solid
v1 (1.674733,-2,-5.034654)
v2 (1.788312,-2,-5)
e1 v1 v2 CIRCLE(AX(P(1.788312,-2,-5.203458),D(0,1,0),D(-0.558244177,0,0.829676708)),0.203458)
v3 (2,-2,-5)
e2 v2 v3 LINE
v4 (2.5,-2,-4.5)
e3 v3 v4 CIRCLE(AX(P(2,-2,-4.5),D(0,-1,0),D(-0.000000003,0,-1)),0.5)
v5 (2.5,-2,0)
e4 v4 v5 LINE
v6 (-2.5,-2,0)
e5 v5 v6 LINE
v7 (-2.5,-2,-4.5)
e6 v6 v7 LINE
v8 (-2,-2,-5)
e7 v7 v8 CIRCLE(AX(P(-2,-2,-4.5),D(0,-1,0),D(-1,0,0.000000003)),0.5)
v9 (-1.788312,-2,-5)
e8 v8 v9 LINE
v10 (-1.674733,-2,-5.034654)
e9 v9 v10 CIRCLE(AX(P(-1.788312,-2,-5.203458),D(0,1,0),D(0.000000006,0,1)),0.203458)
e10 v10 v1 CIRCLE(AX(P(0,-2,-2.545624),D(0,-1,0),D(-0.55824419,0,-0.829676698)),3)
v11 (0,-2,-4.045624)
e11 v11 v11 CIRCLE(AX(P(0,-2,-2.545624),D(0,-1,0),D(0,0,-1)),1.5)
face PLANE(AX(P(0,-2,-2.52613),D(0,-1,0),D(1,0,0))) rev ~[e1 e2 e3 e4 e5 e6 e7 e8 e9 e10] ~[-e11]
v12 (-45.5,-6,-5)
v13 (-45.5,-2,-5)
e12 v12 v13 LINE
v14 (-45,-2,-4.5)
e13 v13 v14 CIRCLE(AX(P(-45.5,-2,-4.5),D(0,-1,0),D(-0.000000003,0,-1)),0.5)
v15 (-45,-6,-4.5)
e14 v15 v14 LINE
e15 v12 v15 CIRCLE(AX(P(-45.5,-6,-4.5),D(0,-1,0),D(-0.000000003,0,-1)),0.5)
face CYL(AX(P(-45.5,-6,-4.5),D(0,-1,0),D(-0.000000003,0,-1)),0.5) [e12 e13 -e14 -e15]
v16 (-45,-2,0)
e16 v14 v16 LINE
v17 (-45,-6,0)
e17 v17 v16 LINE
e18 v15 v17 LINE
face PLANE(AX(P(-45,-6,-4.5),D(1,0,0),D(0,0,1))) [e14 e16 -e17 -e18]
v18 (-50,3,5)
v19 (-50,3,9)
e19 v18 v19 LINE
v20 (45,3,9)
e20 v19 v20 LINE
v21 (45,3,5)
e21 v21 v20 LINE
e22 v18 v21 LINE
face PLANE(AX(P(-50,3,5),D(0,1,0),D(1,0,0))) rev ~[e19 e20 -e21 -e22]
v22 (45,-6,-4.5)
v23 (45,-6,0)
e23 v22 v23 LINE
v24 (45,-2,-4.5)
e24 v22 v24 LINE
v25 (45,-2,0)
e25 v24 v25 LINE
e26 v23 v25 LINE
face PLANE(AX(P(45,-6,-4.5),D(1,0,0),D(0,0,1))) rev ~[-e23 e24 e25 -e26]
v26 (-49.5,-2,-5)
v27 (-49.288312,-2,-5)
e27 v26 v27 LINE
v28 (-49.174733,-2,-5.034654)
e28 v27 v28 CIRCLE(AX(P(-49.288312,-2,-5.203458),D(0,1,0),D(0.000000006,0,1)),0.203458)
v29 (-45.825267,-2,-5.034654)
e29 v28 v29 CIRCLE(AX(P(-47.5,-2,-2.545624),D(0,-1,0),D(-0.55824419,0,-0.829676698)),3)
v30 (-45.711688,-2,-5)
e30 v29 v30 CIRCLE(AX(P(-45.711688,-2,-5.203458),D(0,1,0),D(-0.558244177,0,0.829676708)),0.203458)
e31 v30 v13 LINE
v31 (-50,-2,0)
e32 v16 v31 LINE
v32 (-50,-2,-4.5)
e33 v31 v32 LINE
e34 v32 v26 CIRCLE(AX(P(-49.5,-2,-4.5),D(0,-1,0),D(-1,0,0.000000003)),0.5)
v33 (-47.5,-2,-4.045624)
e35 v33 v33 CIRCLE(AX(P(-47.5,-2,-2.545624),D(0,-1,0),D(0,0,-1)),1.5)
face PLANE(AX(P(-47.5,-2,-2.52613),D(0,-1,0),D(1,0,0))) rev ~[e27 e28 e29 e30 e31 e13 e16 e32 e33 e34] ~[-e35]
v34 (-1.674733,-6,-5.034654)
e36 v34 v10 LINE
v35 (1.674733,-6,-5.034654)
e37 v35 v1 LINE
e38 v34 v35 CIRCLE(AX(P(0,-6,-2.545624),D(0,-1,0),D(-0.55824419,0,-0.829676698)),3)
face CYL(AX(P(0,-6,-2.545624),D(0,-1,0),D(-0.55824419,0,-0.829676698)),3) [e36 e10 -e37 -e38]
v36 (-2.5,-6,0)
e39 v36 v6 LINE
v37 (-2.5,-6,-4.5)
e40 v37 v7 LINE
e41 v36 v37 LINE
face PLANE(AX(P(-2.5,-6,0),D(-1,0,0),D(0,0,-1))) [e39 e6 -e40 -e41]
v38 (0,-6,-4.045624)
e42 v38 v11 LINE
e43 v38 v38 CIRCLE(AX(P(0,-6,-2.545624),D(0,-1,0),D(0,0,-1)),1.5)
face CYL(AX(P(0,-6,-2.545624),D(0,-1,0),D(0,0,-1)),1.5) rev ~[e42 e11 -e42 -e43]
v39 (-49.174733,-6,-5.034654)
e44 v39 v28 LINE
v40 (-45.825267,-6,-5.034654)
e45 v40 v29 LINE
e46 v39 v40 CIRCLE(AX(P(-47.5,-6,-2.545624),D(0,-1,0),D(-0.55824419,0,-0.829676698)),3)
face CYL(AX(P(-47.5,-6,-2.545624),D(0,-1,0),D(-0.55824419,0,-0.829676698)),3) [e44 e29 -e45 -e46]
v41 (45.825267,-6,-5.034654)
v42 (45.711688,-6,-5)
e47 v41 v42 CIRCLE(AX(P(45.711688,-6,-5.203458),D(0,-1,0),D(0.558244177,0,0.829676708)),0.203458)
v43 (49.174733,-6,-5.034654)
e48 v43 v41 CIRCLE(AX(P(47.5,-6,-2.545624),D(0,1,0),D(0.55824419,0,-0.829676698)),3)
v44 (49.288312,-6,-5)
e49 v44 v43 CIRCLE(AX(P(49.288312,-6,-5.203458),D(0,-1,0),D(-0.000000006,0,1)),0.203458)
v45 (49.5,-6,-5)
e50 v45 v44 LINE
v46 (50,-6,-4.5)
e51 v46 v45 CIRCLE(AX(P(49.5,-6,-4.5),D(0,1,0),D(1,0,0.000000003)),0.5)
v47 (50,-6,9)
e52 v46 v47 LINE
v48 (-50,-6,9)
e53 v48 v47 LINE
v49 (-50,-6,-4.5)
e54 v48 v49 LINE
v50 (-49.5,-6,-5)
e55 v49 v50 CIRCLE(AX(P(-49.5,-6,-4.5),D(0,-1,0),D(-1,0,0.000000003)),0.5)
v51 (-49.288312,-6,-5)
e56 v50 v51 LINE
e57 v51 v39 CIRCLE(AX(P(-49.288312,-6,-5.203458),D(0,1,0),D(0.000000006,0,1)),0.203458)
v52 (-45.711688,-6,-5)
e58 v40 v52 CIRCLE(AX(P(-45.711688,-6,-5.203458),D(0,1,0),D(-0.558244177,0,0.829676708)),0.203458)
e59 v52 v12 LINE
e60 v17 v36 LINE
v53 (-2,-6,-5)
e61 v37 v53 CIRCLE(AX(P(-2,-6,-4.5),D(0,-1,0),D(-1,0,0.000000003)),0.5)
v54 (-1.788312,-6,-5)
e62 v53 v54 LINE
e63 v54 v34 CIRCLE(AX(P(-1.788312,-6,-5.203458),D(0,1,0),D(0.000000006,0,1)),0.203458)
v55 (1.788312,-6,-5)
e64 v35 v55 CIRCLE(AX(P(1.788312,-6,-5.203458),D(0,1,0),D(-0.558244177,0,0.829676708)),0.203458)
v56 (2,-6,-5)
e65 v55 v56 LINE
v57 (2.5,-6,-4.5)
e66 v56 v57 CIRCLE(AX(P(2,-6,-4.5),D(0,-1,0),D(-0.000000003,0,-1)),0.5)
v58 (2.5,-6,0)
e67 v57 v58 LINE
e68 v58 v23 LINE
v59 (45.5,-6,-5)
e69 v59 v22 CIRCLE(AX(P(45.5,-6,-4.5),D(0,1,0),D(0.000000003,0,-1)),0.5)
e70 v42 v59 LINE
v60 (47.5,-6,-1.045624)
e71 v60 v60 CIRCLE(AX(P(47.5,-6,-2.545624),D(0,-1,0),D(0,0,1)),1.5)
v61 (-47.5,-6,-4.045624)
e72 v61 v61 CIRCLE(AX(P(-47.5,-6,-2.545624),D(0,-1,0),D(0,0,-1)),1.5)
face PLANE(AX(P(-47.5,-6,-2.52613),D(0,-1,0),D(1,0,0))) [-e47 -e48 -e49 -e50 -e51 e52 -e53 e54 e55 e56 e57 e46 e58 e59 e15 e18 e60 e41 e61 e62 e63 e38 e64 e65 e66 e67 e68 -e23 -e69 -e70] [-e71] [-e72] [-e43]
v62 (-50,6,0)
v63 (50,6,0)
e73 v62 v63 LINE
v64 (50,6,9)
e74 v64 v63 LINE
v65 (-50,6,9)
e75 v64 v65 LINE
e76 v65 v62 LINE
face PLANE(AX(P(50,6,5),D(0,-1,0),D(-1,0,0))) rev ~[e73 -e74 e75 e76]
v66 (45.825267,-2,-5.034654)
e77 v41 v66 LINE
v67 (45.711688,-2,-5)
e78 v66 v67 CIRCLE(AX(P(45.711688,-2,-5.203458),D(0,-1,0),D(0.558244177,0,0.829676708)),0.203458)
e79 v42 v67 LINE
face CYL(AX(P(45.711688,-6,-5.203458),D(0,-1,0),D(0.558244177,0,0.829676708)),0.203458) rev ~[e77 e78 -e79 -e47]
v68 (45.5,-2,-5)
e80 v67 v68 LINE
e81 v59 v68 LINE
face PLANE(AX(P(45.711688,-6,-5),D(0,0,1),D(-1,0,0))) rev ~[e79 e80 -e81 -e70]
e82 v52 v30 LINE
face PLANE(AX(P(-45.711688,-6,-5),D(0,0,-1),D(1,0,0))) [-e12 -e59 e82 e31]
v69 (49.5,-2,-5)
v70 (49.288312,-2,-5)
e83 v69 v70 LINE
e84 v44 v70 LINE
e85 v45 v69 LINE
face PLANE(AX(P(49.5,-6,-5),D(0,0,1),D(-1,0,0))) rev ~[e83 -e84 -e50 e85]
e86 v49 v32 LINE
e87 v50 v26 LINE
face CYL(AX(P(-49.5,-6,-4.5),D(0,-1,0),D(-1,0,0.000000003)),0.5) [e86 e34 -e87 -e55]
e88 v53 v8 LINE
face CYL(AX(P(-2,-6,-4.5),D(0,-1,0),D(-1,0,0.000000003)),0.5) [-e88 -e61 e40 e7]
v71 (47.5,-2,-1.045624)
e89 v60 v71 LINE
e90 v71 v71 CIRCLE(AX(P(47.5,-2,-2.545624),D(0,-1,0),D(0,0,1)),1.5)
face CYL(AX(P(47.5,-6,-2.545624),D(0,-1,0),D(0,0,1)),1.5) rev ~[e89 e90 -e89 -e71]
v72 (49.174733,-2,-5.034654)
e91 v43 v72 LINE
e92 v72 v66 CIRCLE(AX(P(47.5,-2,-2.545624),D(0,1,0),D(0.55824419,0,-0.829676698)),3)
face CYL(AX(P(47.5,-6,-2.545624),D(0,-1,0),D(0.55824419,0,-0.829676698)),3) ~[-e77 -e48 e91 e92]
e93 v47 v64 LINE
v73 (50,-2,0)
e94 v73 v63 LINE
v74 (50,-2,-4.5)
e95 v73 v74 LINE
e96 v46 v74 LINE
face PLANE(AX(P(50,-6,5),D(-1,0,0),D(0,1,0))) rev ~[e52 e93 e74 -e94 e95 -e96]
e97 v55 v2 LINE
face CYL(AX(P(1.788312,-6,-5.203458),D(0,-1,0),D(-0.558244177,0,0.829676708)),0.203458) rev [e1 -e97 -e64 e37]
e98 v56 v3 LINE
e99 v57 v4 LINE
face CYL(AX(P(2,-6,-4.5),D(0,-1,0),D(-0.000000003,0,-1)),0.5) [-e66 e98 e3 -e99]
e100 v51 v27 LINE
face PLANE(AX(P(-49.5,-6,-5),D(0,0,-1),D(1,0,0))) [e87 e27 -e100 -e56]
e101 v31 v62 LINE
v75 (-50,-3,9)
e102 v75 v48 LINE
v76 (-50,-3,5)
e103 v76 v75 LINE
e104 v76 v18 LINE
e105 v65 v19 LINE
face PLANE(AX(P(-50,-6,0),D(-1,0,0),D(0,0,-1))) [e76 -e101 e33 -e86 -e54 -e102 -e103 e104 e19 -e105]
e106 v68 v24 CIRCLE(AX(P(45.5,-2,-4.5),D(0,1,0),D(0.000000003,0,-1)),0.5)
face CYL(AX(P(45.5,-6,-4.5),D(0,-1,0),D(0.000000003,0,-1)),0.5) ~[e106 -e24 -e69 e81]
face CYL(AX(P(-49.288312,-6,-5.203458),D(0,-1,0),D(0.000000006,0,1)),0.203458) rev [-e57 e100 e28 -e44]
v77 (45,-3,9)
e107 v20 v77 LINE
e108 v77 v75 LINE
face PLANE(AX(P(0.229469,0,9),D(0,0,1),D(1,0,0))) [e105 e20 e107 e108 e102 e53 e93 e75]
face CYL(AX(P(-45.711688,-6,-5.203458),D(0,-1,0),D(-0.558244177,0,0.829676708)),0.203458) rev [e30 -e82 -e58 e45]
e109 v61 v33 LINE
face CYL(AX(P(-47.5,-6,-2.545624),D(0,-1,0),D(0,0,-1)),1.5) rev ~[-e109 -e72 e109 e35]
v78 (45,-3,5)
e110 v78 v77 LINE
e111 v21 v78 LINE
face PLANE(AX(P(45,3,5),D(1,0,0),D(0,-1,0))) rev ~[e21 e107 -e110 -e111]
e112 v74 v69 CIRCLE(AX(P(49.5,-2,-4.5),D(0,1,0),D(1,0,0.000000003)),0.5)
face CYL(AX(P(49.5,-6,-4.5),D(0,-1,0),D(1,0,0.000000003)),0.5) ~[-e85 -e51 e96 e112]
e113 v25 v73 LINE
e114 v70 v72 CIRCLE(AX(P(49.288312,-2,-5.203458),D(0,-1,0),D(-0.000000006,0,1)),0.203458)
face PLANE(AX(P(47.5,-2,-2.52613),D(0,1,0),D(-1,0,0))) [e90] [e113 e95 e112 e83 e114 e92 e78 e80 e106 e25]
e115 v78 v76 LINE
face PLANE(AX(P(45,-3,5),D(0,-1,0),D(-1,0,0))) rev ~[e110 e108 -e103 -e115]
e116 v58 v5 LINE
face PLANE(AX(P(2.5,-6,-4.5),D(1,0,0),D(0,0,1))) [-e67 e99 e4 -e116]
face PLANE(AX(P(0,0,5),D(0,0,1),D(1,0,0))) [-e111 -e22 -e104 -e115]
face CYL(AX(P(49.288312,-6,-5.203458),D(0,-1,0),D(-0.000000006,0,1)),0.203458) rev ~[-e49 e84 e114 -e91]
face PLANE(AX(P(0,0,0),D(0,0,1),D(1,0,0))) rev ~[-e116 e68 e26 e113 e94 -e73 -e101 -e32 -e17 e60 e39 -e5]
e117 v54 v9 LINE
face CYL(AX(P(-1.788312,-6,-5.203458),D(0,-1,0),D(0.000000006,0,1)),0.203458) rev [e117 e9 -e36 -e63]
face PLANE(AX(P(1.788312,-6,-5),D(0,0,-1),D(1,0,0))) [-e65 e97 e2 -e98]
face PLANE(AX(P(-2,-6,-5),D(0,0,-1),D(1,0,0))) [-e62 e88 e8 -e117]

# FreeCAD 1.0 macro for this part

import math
import FreeCAD as App
import Part
import Sketcher

V = App.Vector


def add_polygon(sketch, points):
    """Adds a closed chain of lines whose ends are joined by coincident constraints."""
    first, n = sketch.GeometryCount, len(points)
    for a, b in zip(points, points[1:] + points[:1]):
        sketch.addGeometry(Part.LineSegment(App.Vector(*a, 0), App.Vector(*b, 0)), False)
    for i in range(n):
        sketch.addConstraint(Sketcher.Constraint("Coincident", first + i, 2, first + (i + 1) % n, 1))

doc = App.newDocument("Part")
body = doc.addObject("PartDesign::Body", "Body")

# Sketch on XY plane
sketch1 = doc.addObject("Sketcher::SketchObject", "Sketch")
body.addObject(sketch1)
sketch1.AttachmentSupport = (doc.XY_Plane, [""])
sketch1.MapMode = "FlatFace"
add_polygon(sketch1, [(-50, 6), (-50, -6), (50, -6), (50, 6)])  # lines 0-3
sketch1.addConstraint(Sketcher.Constraint("Vertical", 0))
sketch1.addConstraint(Sketcher.Constraint("Horizontal", 1))
sketch1.addConstraint(Sketcher.Constraint("Vertical", 2))
sketch1.addConstraint(Sketcher.Constraint("Horizontal", 3))
sketch1.addConstraint(Sketcher.Constraint("Symmetric", 0, 2, 2, 2, -1, 1))
sketch1.addConstraint(Sketcher.Constraint("DistanceX", 1, 1, 1, 2, 100.0))
sketch1.addConstraint(Sketcher.Constraint("DistanceY", 0, 2, 0, 1, 12.0))
pad1 = doc.addObject("PartDesign::Pad", "Pad")
body.addObject(pad1)
pad1.Profile = sketch1
pad1.Length = 5

# Sketch on XY plane
sketch2 = doc.addObject("Sketcher::SketchObject", "Sketch001")
body.addObject(sketch2)
sketch2.AttachmentSupport = (doc.XY_Plane, [""])
sketch2.MapMode = "FlatFace"
sketch2.AttachmentOffset = App.Placement(V(0, 0, 5), App.Rotation())
add_polygon(sketch2, [(-50, 3), (45, 3), (45, -3), (-50, -3), (-50, -6), (50, -6), (50, 6), (-50, 6)])  # lines 0-7
sketch2.addConstraint(Sketcher.Constraint("Horizontal", 0))
sketch2.addConstraint(Sketcher.Constraint("Vertical", 1))
sketch2.addConstraint(Sketcher.Constraint("Horizontal", 2))
sketch2.addConstraint(Sketcher.Constraint("Vertical", 3))
sketch2.addConstraint(Sketcher.Constraint("Horizontal", 4))
sketch2.addConstraint(Sketcher.Constraint("Vertical", 5))
sketch2.addConstraint(Sketcher.Constraint("Horizontal", 6))
sketch2.addConstraint(Sketcher.Constraint("Vertical", 7))
sketch2.addConstraint(Sketcher.Constraint("Symmetric", 3, 2, 5, 2, -1, 1))
sketch2.addConstraint(Sketcher.Constraint("Symmetric", 2, 2, 7, 2, -1))
sketch2.addConstraint(Sketcher.Constraint("DistanceX", 0, 1, 0, 2, 95.0))
sketch2.addConstraint(Sketcher.Constraint("DistanceX", 4, 1, 4, 2, 100.0))
sketch2.addConstraint(Sketcher.Constraint("DistanceY", 1, 2, 1, 1, 6.0))
sketch2.addConstraint(Sketcher.Constraint("DistanceY", 3, 2, 3, 1, 3.0))
pad2 = doc.addObject("PartDesign::Pad", "Pad001")
body.addObject(pad2)
pad2.Profile = sketch2
pad2.Length = 4

# Sketch on XZ plane
sketch3 = doc.addObject("Sketcher::SketchObject", "Sketch002")
body.addObject(sketch3)
sketch3.AttachmentSupport = (doc.XZ_Plane, [""])
sketch3.MapMode = "FlatFace"
sketch3.AttachmentOffset = App.Placement(V(0, 0, 6), App.Rotation())
sketch3.addGeometry(Part.LineSegment(V(-45.71, -5, 0), V(-45.5, -5, 0)), False)
sketch3.addGeometry(Part.ArcOfCircle(Part.Circle(V(-45.5, -4.5, 0), V(0, 0, 1), 0.5), math.radians(-90), math.radians(0)), False)
sketch3.addGeometry(Part.LineSegment(V(-45, -4.5, 0), V(-45, 0, 0)), False)
sketch3.addGeometry(Part.LineSegment(V(-45, 0, 0), V(-50, 0, 0)), False)
sketch3.addGeometry(Part.LineSegment(V(-50, 0, 0), V(-50, -4.5, 0)), False)
sketch3.addGeometry(Part.ArcOfCircle(Part.Circle(V(-49.5, -4.5, 0), V(0, 0, 1), 0.5), math.radians(180), math.radians(270)), False)
sketch3.addGeometry(Part.LineSegment(V(-49.5, -5, 0), V(-49.29, -5, 0)), False)
sketch3.addGeometry(Part.ArcOfCircle(Part.Circle(V(-49.29, -5.2, 0), V(0, 0, 1), 0.2), math.radians(56), math.radians(90)), False)
sketch3.addGeometry(Part.ArcOfCircle(Part.Circle(V(-47.5, -2.55, 0), V(0, 0, 1), 3), math.radians(-124), math.radians(-56)), False)
sketch3.addGeometry(Part.ArcOfCircle(Part.Circle(V(-45.71, -5.2, 0), V(0, 0, 1), 0.2), math.radians(90), math.radians(124)), False)
sketch3.addGeometry(Part.Circle(V(-47.5, -2.55, 0), V(0, 0, 1), 1.5), False)
sketch3.addGeometry(Part.LineSegment(V(49.29, -5, 0), V(49.5, -5, 0)), False)
sketch3.addGeometry(Part.ArcOfCircle(Part.Circle(V(49.5, -4.5, 0), V(0, 0, 1), 0.5), math.radians(-90), math.radians(0)), False)
sketch3.addGeometry(Part.LineSegment(V(50, -4.5, 0), V(50, 0, 0)), False)
sketch3.addGeometry(Part.LineSegment(V(50, 0, 0), V(45, 0, 0)), False)
sketch3.addGeometry(Part.LineSegment(V(45, 0, 0), V(45, -4.5, 0)), False)
sketch3.addGeometry(Part.ArcOfCircle(Part.Circle(V(45.5, -4.5, 0), V(0, 0, 1), 0.5), math.radians(180), math.radians(270)), False)
sketch3.addGeometry(Part.LineSegment(V(45.5, -5, 0), V(45.71, -5, 0)), False)
sketch3.addGeometry(Part.ArcOfCircle(Part.Circle(V(45.71, -5.2, 0), V(0, 0, 1), 0.2), math.radians(56), math.radians(90)), False)
sketch3.addGeometry(Part.ArcOfCircle(Part.Circle(V(47.5, -2.55, 0), V(0, 0, 1), 3), math.radians(-124), math.radians(-56)), False)
sketch3.addGeometry(Part.ArcOfCircle(Part.Circle(V(49.29, -5.2, 0), V(0, 0, 1), 0.2), math.radians(90), math.radians(124)), False)
sketch3.addGeometry(Part.Circle(V(47.5, -2.55, 0), V(0, 0, 1), 1.5), False)
sketch3.addGeometry(Part.LineSegment(V(-2.5, 0, 0), V(-2.5, -4.5, 0)), False)
sketch3.addGeometry(Part.ArcOfCircle(Part.Circle(V(-2, -4.5, 0), V(0, 0, 1), 0.5), math.radians(180), math.radians(270)), False)
sketch3.addGeometry(Part.LineSegment(V(-2, -5, 0), V(-1.79, -5, 0)), False)
sketch3.addGeometry(Part.ArcOfCircle(Part.Circle(V(-1.79, -5.2, 0), V(0, 0, 1), 0.2), math.radians(56), math.radians(90)), False)
sketch3.addGeometry(Part.ArcOfCircle(Part.Circle(V(0, -2.55, 0), V(0, 0, 1), 3), math.radians(-124), math.radians(-56)), False)
sketch3.addGeometry(Part.ArcOfCircle(Part.Circle(V(1.79, -5.2, 0), V(0, 0, 1), 0.2), math.radians(90), math.radians(124)), False)
sketch3.addGeometry(Part.LineSegment(V(1.79, -5, 0), V(2, -5, 0)), False)
sketch3.addGeometry(Part.ArcOfCircle(Part.Circle(V(2, -4.5, 0), V(0, 0, 1), 0.5), math.radians(-90), math.radians(0)), False)
sketch3.addGeometry(Part.LineSegment(V(2.5, -4.5, 0), V(2.5, 0, 0)), False)
sketch3.addGeometry(Part.LineSegment(V(2.5, 0, 0), V(-2.5, 0, 0)), False)
sketch3.addGeometry(Part.Circle(V(0, -2.55, 0), V(0, 0, 1), 1.5), False)
sketch3.addConstraint(Sketcher.Constraint("Tangent", 0, 2, 1, 1))
sketch3.addConstraint(Sketcher.Constraint("Tangent", 1, 2, 2, 1))
sketch3.addConstraint(Sketcher.Constraint("Coincident", 2, 2, 3, 1))
sketch3.addConstraint(Sketcher.Constraint("Coincident", 3, 2, 4, 1))
sketch3.addConstraint(Sketcher.Constraint("Tangent", 4, 2, 5, 1))
sketch3.addConstraint(Sketcher.Constraint("Tangent", 5, 2, 6, 1))
sketch3.addConstraint(Sketcher.Constraint("Tangent", 6, 2, 7, 2))
sketch3.addConstraint(Sketcher.Constraint("Tangent", 7, 1, 8, 1))
sketch3.addConstraint(Sketcher.Constraint("Tangent", 8, 2, 9, 2))
sketch3.addConstraint(Sketcher.Constraint("Tangent", 9, 1, 0, 1))
sketch3.addConstraint(Sketcher.Constraint("Tangent", 11, 2, 12, 1))
sketch3.addConstraint(Sketcher.Constraint("Tangent", 12, 2, 13, 1))
sketch3.addConstraint(Sketcher.Constraint("Coincident", 13, 2, 14, 1))
sketch3.addConstraint(Sketcher.Constraint("Coincident", 14, 2, 15, 1))
sketch3.addConstraint(Sketcher.Constraint("Tangent", 15, 2, 16, 1))
sketch3.addConstraint(Sketcher.Constraint("Tangent", 16, 2, 17, 1))
sketch3.addConstraint(Sketcher.Constraint("Tangent", 17, 2, 18, 2))
sketch3.addConstraint(Sketcher.Constraint("Tangent", 18, 1, 19, 1))
sketch3.addConstraint(Sketcher.Constraint("Tangent", 19, 2, 20, 2))
sketch3.addConstraint(Sketcher.Constraint("Tangent", 20, 1, 11, 1))
sketch3.addConstraint(Sketcher.Constraint("Tangent", 22, 2, 23, 1))
sketch3.addConstraint(Sketcher.Constraint("Tangent", 23, 2, 24, 1))
sketch3.addConstraint(Sketcher.Constraint("Tangent", 24, 2, 25, 2))
sketch3.addConstraint(Sketcher.Constraint("Tangent", 25, 1, 26, 1))
sketch3.addConstraint(Sketcher.Constraint("Tangent", 26, 2, 27, 2))
sketch3.addConstraint(Sketcher.Constraint("Tangent", 27, 1, 28, 1))
sketch3.addConstraint(Sketcher.Constraint("Tangent", 28, 2, 29, 1))
sketch3.addConstraint(Sketcher.Constraint("Tangent", 29, 2, 30, 1))
sketch3.addConstraint(Sketcher.Constraint("Coincident", 30, 2, 31, 1))
sketch3.addConstraint(Sketcher.Constraint("Coincident", 31, 2, 22, 1))
sketch3.addConstraint(Sketcher.Constraint("Horizontal", 0))
sketch3.addConstraint(Sketcher.Constraint("Vertical", 2))
sketch3.addConstraint(Sketcher.Constraint("Horizontal", 3))
sketch3.addConstraint(Sketcher.Constraint("Vertical", 4))
sketch3.addConstraint(Sketcher.Constraint("Horizontal", 6))
sketch3.addConstraint(Sketcher.Constraint("Horizontal", 11))
sketch3.addConstraint(Sketcher.Constraint("Vertical", 13))
sketch3.addConstraint(Sketcher.Constraint("Horizontal", 14))
sketch3.addConstraint(Sketcher.Constraint("Vertical", 15))
sketch3.addConstraint(Sketcher.Constraint("Horizontal", 17))
sketch3.addConstraint(Sketcher.Constraint("Vertical", 22))
sketch3.addConstraint(Sketcher.Constraint("Horizontal", 24))
sketch3.addConstraint(Sketcher.Constraint("Horizontal", 28))
sketch3.addConstraint(Sketcher.Constraint("Vertical", 30))
sketch3.addConstraint(Sketcher.Constraint("Horizontal", 31))
sketch3.addConstraint(Sketcher.Constraint("Coincident", 10, 3, 8, 3))
sketch3.addConstraint(Sketcher.Constraint("Coincident", 21, 3, 19, 3))
sketch3.addConstraint(Sketcher.Constraint("Coincident", 32, 3, 26, 3))
sketch3.addConstraint(Sketcher.Constraint("Equal", 1, 5))
sketch3.addConstraint(Sketcher.Constraint("Equal", 7, 9))
sketch3.addConstraint(Sketcher.Constraint("Equal", 5, 12))
sketch3.addConstraint(Sketcher.Constraint("Equal", 12, 16))
sketch3.addConstraint(Sketcher.Constraint("Equal", 9, 18))
sketch3.addConstraint(Sketcher.Constraint("Equal", 8, 19))
sketch3.addConstraint(Sketcher.Constraint("Equal", 18, 20))
sketch3.addConstraint(Sketcher.Constraint("Equal", 10, 21))
sketch3.addConstraint(Sketcher.Constraint("Equal", 16, 23))
sketch3.addConstraint(Sketcher.Constraint("Equal", 20, 25))
sketch3.addConstraint(Sketcher.Constraint("Equal", 19, 26))
sketch3.addConstraint(Sketcher.Constraint("Equal", 25, 27))
sketch3.addConstraint(Sketcher.Constraint("Equal", 23, 29))
sketch3.addConstraint(Sketcher.Constraint("Equal", 21, 32))
sketch3.addConstraint(Sketcher.Constraint("Symmetric", 3, 2, 13, 2, -1, 1))
sketch3.addConstraint(Sketcher.Constraint("Symmetric", 30, 2, 31, 2, -1, 1))
sketch3.addConstraint(Sketcher.Constraint("Symmetric", 1, 3, 16, 3, -2))
sketch3.addConstraint(Sketcher.Constraint("Symmetric", 8, 3, 19, 3, -2))
sketch3.addConstraint(Sketcher.Constraint("Symmetric", 25, 3, 27, 3, -2))
sketch3.addConstraint(Sketcher.Constraint("PointOnObject", 2, 2, -1))
sketch3.addConstraint(Sketcher.Constraint("Horizontal", 1, 3, 5, 3))
sketch3.addConstraint(Sketcher.Constraint("Horizontal", 5, 3, 12, 3))
sketch3.addConstraint(Sketcher.Constraint("Horizontal", 16, 3, 23, 3))
sketch3.addConstraint(Sketcher.Constraint("Horizontal", 21, 3, 26, 3))
sketch3.addConstraint(Sketcher.Constraint("Equal", 0, 6))
sketch3.addConstraint(Sketcher.Constraint("Equal", 17, 24))
sketch3.addConstraint(Sketcher.Constraint("Diameter", 10, 3.0))
sketch3.addConstraint(Sketcher.Constraint("Radius", 8, 3.0))
sketch3.addConstraint(Sketcher.Constraint("Radius", 1, 0.5))
sketch3.addConstraint(Sketcher.Constraint("DistanceX", 3, 2, 3, 1, 5.0))
sketch3.addConstraint(Sketcher.Constraint("DistanceY", 2, 1, 2, 2, 4.5))
sketch3.addConstraint(Sketcher.Constraint("DistanceX", 1, 2, -1, 1, 45.0))
sketch3.addConstraint(Sketcher.Constraint("Radius", 7, 0.203458))
sketch3.addConstraint(Sketcher.Constraint("DistanceX", 0, 1, 0, 2, 0.211688))
pad3 = doc.addObject("PartDesign::Pad", "Pad002")
body.addObject(pad3)
pad3.Profile = sketch3
pad3.Length = 4
pad3.Reversed = True

doc.recompute()
